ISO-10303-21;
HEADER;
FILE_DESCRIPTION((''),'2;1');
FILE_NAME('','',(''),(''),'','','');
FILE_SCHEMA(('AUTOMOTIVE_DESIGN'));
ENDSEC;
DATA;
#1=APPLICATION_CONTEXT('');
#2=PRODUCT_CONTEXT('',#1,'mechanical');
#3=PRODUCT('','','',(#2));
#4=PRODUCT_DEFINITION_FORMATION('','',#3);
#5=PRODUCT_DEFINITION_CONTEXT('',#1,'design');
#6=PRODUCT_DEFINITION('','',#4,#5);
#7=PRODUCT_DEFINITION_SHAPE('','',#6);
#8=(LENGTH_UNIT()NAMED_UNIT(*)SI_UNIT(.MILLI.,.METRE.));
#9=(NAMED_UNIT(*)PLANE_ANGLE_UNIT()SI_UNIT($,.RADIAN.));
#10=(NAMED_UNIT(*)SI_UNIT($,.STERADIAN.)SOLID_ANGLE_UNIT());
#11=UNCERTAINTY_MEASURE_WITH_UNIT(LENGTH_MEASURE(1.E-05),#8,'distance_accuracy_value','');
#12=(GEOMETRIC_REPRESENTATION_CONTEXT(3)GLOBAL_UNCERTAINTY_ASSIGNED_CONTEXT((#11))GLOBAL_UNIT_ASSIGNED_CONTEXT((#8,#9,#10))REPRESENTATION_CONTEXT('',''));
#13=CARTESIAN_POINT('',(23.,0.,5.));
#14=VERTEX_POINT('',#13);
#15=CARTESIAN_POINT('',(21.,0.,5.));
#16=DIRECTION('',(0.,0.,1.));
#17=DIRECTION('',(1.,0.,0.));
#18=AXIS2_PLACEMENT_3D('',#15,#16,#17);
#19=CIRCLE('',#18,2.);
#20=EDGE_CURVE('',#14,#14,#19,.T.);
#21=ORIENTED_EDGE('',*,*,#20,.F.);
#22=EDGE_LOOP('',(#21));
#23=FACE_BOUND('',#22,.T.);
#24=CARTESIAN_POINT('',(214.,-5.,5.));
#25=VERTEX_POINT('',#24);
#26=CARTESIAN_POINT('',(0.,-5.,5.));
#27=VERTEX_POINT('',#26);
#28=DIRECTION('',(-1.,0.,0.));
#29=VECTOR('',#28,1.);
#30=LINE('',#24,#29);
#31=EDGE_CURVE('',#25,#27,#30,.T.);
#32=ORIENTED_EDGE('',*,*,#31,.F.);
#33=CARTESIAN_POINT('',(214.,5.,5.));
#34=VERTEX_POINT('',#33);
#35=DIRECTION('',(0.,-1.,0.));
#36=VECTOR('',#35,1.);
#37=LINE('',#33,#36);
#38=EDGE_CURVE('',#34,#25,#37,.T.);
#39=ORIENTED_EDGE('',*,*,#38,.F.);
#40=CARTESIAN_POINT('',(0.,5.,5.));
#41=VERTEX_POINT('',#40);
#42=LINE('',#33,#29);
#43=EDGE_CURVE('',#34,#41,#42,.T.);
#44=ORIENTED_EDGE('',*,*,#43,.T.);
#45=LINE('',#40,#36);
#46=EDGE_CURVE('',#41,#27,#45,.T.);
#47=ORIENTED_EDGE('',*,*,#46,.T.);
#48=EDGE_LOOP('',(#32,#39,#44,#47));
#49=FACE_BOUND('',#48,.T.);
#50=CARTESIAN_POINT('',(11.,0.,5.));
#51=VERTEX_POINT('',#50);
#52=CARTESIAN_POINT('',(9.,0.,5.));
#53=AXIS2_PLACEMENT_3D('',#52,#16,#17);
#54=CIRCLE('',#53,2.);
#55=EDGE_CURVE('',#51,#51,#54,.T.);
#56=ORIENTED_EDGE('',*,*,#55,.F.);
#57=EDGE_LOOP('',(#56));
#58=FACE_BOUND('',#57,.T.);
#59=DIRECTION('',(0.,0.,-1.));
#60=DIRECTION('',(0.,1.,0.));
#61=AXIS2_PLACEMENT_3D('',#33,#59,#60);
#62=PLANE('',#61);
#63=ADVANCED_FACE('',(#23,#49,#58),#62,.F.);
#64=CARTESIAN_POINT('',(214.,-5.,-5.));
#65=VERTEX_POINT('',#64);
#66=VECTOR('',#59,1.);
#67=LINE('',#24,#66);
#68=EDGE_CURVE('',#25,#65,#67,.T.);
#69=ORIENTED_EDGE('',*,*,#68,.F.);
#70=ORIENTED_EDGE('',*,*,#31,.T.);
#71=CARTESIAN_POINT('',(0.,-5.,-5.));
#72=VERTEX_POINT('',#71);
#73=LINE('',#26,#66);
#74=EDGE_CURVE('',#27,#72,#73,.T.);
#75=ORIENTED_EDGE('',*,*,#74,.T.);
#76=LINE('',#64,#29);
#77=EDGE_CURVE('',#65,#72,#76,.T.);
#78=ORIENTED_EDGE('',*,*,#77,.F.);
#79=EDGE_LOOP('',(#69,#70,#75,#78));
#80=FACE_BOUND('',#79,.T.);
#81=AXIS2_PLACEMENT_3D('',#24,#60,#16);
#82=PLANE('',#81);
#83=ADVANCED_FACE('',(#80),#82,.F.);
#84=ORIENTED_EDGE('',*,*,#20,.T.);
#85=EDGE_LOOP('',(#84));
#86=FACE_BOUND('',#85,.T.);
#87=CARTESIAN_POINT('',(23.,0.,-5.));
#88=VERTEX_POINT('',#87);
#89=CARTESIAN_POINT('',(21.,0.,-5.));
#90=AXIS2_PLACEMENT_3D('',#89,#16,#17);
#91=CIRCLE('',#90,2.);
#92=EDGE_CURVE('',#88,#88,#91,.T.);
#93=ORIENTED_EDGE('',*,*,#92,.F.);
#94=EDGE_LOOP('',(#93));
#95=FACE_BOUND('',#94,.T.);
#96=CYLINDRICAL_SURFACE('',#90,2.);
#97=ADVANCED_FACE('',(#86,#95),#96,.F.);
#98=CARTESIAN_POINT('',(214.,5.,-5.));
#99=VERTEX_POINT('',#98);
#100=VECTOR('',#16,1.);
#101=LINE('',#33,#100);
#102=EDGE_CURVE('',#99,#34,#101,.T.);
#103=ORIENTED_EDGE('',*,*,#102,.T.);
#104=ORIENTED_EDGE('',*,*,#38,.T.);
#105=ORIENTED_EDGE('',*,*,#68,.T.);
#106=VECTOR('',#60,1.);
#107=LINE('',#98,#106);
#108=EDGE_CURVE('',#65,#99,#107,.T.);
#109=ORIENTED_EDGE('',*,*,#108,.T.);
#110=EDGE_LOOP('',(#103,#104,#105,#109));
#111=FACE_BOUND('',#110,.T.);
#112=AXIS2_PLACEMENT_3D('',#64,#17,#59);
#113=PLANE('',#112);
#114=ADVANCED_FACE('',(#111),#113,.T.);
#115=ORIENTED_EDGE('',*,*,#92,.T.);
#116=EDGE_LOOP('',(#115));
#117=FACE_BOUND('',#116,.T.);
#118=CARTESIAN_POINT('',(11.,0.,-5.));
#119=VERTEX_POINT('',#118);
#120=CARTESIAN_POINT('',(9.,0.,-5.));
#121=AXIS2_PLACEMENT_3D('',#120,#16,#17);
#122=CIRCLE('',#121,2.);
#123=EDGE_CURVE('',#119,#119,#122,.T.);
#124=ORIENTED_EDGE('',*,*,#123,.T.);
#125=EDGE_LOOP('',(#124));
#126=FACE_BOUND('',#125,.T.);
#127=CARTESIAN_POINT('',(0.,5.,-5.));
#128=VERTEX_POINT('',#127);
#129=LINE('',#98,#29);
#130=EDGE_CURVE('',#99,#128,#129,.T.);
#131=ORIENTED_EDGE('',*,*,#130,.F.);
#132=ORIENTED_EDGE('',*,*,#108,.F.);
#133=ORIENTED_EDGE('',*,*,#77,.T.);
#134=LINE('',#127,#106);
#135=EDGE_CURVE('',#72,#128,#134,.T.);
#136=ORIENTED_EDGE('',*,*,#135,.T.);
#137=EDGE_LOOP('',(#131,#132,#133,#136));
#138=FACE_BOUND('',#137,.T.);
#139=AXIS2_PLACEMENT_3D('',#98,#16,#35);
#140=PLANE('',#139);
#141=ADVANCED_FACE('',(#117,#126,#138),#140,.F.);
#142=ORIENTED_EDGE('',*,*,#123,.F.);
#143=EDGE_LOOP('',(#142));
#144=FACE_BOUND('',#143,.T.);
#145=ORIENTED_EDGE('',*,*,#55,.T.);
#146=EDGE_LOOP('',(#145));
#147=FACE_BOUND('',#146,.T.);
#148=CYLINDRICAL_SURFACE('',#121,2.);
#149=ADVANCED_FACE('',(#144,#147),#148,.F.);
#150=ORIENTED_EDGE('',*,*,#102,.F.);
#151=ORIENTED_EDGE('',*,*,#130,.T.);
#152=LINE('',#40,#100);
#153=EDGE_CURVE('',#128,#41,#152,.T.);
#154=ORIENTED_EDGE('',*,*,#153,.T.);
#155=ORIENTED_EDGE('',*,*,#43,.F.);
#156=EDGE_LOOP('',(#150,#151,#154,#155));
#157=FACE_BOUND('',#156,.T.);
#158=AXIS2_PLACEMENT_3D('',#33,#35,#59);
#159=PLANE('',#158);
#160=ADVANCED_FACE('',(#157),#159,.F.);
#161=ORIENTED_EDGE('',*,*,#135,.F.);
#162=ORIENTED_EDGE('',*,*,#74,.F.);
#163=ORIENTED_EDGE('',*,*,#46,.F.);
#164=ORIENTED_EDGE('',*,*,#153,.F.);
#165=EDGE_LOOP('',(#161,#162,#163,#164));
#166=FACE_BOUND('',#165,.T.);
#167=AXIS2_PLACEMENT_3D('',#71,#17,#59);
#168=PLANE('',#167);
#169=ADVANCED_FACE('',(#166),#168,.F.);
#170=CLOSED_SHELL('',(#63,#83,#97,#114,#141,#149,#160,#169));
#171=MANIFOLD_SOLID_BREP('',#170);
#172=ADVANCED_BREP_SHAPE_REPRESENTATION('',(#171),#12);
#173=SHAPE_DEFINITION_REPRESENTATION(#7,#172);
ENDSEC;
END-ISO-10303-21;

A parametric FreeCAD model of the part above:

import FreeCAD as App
import Part
import Sketcher

V = App.Vector
Q = App.Units.Quantity


def add_polygon(sketch, points):
    """Adds a closed chain of lines whose ends are joined by coincident constraints."""
    first, n = sketch.GeometryCount, len(points)
    for a, b in zip(points, points[1:] + points[:1]):
        sketch.addGeometry(Part.LineSegment(App.Vector(*a, 0), App.Vector(*b, 0)), False)
    for i in range(n):
        sketch.addConstraint(Sketcher.Constraint("Coincident", first + i, 2, first + (i + 1) % n, 1))

doc = App.newDocument("Part")
body = doc.addObject("PartDesign::Body", "Body")

# Sketch on YZ plane
sketch1 = body.newObject("Sketcher::SketchObject", "Sketch")
sketch1.AttachmentSupport = (doc.getObject("YZ_Plane"), [""])
sketch1.MapMode = "FlatFace"
add_polygon(sketch1, [(5, 5), (-5, 5), (-5, -5), (5, -5)])  # lines 0-3
sketch1.addConstraint(Sketcher.Constraint("Horizontal", 0))
sketch1.addConstraint(Sketcher.Constraint("Vertical", 1))
sketch1.addConstraint(Sketcher.Constraint("Horizontal", 2))
sketch1.addConstraint(Sketcher.Constraint("Vertical", 3))
sketch1.addConstraint(Sketcher.Constraint("Symmetric", 0, 2, 2, 2, -1, 1))
sketch1.addConstraint(Sketcher.Constraint("Equal", 2, 1))
sketch1.addConstraint(Sketcher.Constraint("DistanceX", 0, 2, 0, 1, Q("10 mm")))
pad1 = body.newObject("PartDesign::Pad", "Pad")
pad1.Profile = sketch1
pad1.Length = 214

# Sketch on XY plane
sketch2 = body.newObject("Sketcher::SketchObject", "Sketch001")
sketch2.AttachmentSupport = (doc.getObject("XY_Plane"), [""])
sketch2.MapMode = "FlatFace"
sketch2.AttachmentOffset = App.Placement(V(0, 0, 5), App.Rotation())
sketch2.addGeometry(Part.Circle(V(9, 0, 0), V(0, 0, 1), 2), False)
sketch2.addGeometry(Part.Circle(V(21, 0, 0), V(0, 0, 1), 2), False)
sketch2.addConstraint(Sketcher.Constraint("Equal", 0, 1))
sketch2.addConstraint(Sketcher.Constraint("PointOnObject", 0, 3, -1))
sketch2.addConstraint(Sketcher.Constraint("PointOnObject", 1, 3, -1))
sketch2.addConstraint(Sketcher.Constraint("Diameter", 0, Q("4 mm")))
sketch2.addConstraint(Sketcher.Constraint("DistanceX", -1, 1, 0, 3, Q("9 mm")))
sketch2.addConstraint(Sketcher.Constraint("DistanceX", -1, 1, 1, 3, Q("21 mm")))
pocket1 = body.newObject("PartDesign::Pocket", "Pocket")
pocket1.Profile = sketch2
pocket1.Type = "ThroughAll"

doc.recompute()
